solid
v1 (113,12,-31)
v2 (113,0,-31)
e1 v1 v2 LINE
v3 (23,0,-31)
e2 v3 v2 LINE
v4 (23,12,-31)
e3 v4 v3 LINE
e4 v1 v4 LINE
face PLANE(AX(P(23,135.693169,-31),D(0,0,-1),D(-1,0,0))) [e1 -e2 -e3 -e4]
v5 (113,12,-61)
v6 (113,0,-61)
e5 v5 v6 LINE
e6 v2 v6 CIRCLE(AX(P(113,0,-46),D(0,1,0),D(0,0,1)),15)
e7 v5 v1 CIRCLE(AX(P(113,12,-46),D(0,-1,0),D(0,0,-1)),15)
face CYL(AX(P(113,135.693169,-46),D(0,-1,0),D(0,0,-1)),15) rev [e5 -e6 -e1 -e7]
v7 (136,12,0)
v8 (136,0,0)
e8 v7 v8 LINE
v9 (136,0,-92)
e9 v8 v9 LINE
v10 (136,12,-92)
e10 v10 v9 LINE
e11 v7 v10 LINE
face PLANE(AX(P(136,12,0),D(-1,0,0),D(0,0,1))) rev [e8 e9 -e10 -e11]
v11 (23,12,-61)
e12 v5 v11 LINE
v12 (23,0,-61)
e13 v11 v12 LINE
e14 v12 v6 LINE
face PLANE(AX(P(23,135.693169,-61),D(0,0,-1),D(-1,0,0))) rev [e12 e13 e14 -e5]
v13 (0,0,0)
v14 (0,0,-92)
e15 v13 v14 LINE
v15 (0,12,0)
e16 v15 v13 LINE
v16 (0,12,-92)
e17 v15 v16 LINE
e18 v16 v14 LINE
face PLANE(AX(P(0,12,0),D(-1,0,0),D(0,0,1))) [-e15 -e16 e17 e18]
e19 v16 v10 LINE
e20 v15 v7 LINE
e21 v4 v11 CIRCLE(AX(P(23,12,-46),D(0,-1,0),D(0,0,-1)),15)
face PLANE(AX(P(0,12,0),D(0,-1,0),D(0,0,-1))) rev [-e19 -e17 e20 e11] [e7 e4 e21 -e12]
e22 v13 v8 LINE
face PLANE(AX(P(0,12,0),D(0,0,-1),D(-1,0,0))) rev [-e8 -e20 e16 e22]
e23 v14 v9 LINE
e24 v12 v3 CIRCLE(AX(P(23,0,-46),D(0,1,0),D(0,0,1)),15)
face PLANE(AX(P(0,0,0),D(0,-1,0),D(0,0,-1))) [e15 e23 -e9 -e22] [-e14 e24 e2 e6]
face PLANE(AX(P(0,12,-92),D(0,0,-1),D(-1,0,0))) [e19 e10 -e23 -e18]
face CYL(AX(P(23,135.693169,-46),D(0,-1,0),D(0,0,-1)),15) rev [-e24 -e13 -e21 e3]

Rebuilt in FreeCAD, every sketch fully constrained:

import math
import FreeCAD as App
import Part
import Sketcher
from FreeCAD import Vector

doc = App.newDocument("Part")
body = doc.addObject("PartDesign::Body", "Body")

# Sketch on XZ plane
sketch1 = body.newObject("Sketcher::SketchObject", "Sketch")
sketch1.AttachmentSupport = (doc.getObject("XZ_Plane"), [""])
sketch1.MapMode = "FlatFace"
sketch1.addGeometry([
    Part.LineSegment(Vector(0, -92, 0), Vector(0, 0, 0)),
    Part.LineSegment(Vector(0, 0, 0), Vector(136, 0, 0)),
    Part.LineSegment(Vector(136, 0, 0), Vector(136, -92, 0)),
    Part.LineSegment(Vector(136, -92, 0), Vector(0, -92, 0)),
], False)
sketch1.addConstraint([
    Sketcher.Constraint("Coincident", 0, 2, 1, 1),
    Sketcher.Constraint("Coincident", 1, 2, 2, 1),
    Sketcher.Constraint("Coincident", 2, 2, 3, 1),
    Sketcher.Constraint("Coincident", 3, 2, 0, 1),
    Sketcher.Constraint("Vertical", 0),
    Sketcher.Constraint("Horizontal", 1),
    Sketcher.Constraint("Vertical", 2),
    Sketcher.Constraint("Horizontal", 3),
    Sketcher.Constraint("Coincident", 0, 2, -1, 1),
    Sketcher.Constraint("DistanceX", 1, 1, 1, 2, 136.0),
    Sketcher.Constraint("DistanceY", 0, 1, 0, 2, 92.0),
])
pad1 = body.newObject("PartDesign::Pad", "Pad")
pad1.Profile = sketch1
pad1.Length = 12
pad1.Reversed = True

# Sketch on XZ plane
sketch2 = body.newObject("Sketcher::SketchObject", "Sketch001")
sketch2.AttachmentSupport = (doc.getObject("XZ_Plane"), [""])
sketch2.MapMode = "FlatFace"
sketch2.addGeometry([
    Part.LineSegment(Vector(113, -61, 0), Vector(23, -61, 0)),
    Part.ArcOfCircle(Part.Circle(Vector(23, -46, 0), Vector(0, 0, 1), 15), math.radians(90), math.radians(270)),
    Part.LineSegment(Vector(23, -31, 0), Vector(113, -31, 0)),
    Part.ArcOfCircle(Part.Circle(Vector(113, -46, 0), Vector(0, 0, 1), 15), math.radians(-90), math.radians(90)),
], False)
sketch2.addConstraint([
    Sketcher.Constraint("Tangent", 0, 2, 1, 2),
    Sketcher.Constraint("Tangent", 1, 1, 2, 1),
    Sketcher.Constraint("Tangent", 2, 2, 3, 2),
    Sketcher.Constraint("Tangent", 3, 1, 0, 1),
    Sketcher.Constraint("Horizontal", 0),
    Sketcher.Constraint("Horizontal", 2),
    Sketcher.Constraint("Radius", 1, 15.0),
    Sketcher.Constraint("DistanceX", 0, 2, 0, 1, 90.0),
    Sketcher.Constraint("DistanceX", -1, 1, 1, 3, 23.0),
    Sketcher.Constraint("DistanceY", 1, 3, -1, 1, 46.0),
])
pocket1 = body.newObject("PartDesign::Pocket", "Pocket")
pocket1.Profile = sketch2
pocket1.Length = 12

doc.recompute()
